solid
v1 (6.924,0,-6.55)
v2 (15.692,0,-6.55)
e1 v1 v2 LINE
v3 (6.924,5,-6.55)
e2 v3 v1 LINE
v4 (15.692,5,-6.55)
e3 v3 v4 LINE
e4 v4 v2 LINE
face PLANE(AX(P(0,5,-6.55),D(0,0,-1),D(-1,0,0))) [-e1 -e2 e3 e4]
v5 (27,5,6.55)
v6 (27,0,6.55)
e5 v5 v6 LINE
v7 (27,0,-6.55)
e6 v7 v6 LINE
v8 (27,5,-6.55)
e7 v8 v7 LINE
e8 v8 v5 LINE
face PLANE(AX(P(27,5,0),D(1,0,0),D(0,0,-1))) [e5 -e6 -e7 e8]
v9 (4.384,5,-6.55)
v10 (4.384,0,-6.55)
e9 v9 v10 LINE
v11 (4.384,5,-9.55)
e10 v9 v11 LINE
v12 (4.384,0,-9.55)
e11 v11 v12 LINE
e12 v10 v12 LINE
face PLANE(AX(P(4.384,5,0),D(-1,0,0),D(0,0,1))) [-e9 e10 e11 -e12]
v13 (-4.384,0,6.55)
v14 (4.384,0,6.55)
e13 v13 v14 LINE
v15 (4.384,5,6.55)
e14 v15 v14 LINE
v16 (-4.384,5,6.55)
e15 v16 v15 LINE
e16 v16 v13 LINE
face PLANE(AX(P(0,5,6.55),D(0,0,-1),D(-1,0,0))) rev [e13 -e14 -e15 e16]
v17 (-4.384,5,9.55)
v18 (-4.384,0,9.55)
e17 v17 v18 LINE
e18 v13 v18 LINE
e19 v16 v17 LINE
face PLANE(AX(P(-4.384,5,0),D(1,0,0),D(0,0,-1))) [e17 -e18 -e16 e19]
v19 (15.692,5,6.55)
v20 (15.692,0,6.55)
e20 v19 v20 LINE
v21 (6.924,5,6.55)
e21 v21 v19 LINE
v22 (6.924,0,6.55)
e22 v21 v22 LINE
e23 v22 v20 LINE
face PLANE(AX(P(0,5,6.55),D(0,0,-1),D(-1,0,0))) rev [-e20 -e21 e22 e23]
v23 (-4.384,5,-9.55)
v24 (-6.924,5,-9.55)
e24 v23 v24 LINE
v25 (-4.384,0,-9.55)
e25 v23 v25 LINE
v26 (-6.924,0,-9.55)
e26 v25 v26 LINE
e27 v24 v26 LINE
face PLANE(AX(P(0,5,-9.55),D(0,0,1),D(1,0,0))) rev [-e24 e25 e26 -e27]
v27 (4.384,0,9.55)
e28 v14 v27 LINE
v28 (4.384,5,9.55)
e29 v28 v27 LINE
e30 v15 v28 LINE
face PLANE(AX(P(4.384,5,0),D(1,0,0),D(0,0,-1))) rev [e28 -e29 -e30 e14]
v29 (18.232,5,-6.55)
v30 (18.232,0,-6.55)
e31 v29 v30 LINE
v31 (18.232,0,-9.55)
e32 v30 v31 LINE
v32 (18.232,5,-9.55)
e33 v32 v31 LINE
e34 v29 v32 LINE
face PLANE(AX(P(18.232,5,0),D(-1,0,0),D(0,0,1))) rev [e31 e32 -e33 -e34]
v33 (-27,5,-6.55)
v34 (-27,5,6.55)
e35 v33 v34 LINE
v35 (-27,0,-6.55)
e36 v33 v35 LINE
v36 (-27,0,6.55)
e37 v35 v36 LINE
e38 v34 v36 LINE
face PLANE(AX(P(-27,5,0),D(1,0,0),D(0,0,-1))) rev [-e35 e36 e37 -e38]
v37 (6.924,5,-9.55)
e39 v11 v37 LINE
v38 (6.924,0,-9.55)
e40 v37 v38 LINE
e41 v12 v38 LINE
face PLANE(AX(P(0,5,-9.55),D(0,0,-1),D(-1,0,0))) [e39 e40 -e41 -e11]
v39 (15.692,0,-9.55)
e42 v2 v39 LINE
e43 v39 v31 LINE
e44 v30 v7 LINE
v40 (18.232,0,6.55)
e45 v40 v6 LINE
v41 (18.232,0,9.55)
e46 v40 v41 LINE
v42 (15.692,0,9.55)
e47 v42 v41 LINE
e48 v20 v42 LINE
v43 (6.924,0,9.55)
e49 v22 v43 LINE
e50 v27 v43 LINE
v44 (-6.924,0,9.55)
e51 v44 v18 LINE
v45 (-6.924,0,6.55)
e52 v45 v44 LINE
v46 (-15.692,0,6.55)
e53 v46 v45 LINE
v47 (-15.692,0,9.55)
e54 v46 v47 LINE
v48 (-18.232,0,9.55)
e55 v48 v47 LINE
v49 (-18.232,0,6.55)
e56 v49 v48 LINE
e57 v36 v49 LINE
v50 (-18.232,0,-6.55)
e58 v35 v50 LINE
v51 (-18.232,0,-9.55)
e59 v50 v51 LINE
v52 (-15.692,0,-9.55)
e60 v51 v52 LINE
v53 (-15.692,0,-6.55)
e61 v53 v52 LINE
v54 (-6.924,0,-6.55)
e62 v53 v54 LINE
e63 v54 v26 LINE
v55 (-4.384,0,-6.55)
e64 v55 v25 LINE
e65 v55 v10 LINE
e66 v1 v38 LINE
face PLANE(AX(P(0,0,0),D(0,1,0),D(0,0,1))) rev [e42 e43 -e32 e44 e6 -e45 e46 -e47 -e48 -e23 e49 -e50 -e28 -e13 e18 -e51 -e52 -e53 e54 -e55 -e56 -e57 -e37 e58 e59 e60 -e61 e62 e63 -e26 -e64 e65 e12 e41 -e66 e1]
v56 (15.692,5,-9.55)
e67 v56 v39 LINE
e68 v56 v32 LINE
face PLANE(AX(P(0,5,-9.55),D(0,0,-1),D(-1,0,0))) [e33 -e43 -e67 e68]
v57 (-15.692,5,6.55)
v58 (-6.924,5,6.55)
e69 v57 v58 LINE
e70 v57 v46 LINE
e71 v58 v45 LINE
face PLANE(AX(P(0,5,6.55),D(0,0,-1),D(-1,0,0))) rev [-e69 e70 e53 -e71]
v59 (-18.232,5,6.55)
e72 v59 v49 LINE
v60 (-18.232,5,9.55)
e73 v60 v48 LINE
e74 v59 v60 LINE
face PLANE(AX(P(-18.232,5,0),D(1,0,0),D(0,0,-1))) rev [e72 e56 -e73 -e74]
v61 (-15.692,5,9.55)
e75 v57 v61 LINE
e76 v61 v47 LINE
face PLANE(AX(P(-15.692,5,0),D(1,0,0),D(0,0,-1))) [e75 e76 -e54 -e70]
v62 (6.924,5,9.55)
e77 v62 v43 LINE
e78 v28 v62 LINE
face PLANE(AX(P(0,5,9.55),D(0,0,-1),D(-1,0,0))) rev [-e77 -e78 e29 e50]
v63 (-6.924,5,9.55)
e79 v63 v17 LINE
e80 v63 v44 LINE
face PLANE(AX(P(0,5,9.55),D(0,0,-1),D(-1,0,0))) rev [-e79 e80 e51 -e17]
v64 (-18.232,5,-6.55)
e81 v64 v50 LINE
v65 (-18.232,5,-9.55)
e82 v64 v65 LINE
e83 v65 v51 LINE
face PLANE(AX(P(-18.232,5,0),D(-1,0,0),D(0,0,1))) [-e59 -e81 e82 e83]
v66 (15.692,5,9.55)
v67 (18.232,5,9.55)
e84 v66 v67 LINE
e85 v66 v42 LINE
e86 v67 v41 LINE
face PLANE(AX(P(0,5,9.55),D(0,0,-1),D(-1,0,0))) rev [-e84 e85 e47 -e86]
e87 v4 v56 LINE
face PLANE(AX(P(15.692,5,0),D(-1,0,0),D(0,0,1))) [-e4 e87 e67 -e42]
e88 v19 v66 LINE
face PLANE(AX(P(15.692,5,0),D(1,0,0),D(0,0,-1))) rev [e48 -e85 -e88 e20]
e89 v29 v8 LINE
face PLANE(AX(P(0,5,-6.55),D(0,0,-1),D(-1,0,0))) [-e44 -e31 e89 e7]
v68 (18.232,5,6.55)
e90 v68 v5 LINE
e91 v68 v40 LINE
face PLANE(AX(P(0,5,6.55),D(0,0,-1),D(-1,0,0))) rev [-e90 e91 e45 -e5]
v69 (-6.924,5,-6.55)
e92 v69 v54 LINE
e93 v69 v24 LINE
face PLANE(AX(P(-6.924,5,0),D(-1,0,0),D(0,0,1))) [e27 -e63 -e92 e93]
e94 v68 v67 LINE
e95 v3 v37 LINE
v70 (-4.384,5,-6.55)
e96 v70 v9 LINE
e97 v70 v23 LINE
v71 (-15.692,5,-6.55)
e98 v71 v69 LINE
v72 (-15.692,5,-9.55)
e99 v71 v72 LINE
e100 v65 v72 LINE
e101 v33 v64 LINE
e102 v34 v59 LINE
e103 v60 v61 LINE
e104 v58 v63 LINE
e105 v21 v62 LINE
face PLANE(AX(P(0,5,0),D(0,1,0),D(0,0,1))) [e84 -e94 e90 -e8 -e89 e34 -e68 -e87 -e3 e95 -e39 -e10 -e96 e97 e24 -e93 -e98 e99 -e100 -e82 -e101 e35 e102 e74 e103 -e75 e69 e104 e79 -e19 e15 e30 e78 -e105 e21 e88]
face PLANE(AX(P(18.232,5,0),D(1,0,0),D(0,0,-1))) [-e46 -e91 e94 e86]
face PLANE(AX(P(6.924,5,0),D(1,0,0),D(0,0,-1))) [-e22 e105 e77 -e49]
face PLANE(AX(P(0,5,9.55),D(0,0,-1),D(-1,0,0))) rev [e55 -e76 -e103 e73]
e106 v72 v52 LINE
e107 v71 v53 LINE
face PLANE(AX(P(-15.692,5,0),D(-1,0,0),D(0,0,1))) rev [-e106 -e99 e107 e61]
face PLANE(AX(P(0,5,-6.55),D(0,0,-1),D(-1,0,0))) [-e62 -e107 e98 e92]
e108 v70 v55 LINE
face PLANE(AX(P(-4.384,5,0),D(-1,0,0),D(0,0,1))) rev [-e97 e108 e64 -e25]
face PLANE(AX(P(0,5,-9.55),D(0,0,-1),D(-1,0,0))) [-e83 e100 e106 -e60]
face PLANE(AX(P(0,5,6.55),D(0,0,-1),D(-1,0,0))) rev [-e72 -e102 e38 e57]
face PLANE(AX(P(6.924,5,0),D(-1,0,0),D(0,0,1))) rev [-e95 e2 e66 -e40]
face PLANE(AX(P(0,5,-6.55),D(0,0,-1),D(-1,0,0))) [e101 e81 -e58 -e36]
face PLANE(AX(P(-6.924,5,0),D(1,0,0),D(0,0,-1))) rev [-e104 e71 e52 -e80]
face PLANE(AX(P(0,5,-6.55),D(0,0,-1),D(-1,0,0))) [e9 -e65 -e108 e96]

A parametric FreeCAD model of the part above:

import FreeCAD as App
import Part
import Sketcher
Q = App.Units.Quantity


def add_polygon(sketch, points):
    """Adds a closed chain of lines whose ends are joined by coincident constraints."""
    first, n = sketch.GeometryCount, len(points)
    for a, b in zip(points, points[1:] + points[:1]):
        sketch.addGeometry(Part.LineSegment(App.Vector(*a, 0), App.Vector(*b, 0)), False)
    for i in range(n):
        sketch.addConstraint(Sketcher.Constraint("Coincident", first + i, 2, first + (i + 1) % n, 1))

doc = App.newDocument("Part")
body = doc.addObject("PartDesign::Body", "Body")

sketch1 = body.newObject("Sketcher::SketchObject", "Sketch")
sketch1.AttachmentSupport = (doc.getObject("XZ_Plane"), [""])
sketch1.MapMode = "FlatFace"
add_polygon(sketch1, [(-27, -6.55), (-27, 6.55), (-18.232, 6.55), (-18.232, 9.55), (-15.692, 9.55), (-15.692, 6.55), (-6.924, 6.55), (-6.924, 9.55), (-4.384, 9.55), (-4.384, 6.55), (4.384, 6.55), (4.384, 9.55), (6.924, 9.55), (6.924, 6.55), (15.692, 6.55), (15.692, 9.55), (18.232, 9.55), (18.232, 6.55), (27, 6.55), (27, -6.55), (18.232, -6.55), (18.232, -9.55), (15.692, -9.55), (15.692, -6.55), (6.924, -6.55), (6.924, -9.55), (4.384, -9.55), (4.384, -6.55), (-4.384, -6.55), (-4.384, -9.55), (-6.924, -9.55), (-6.924, -6.55), (-15.692, -6.55), (-15.692, -9.55), (-18.232, -9.55), (-18.232, -6.55)])
sketch1.addConstraint(Sketcher.Constraint("Vertical", 0))
sketch1.addConstraint(Sketcher.Constraint("Horizontal", 1))
sketch1.addConstraint(Sketcher.Constraint("Vertical", 2))
sketch1.addConstraint(Sketcher.Constraint("Horizontal", 3))
sketch1.addConstraint(Sketcher.Constraint("Vertical", 4))
sketch1.addConstraint(Sketcher.Constraint("Horizontal", 5))
sketch1.addConstraint(Sketcher.Constraint("Vertical", 6))
sketch1.addConstraint(Sketcher.Constraint("Horizontal", 7))
sketch1.addConstraint(Sketcher.Constraint("Vertical", 8))
sketch1.addConstraint(Sketcher.Constraint("Horizontal", 9))
sketch1.addConstraint(Sketcher.Constraint("Vertical", 10))
sketch1.addConstraint(Sketcher.Constraint("Horizontal", 11))
sketch1.addConstraint(Sketcher.Constraint("Vertical", 12))
sketch1.addConstraint(Sketcher.Constraint("Horizontal", 13))
sketch1.addConstraint(Sketcher.Constraint("Vertical", 14))
sketch1.addConstraint(Sketcher.Constraint("Horizontal", 15))
sketch1.addConstraint(Sketcher.Constraint("Vertical", 16))
sketch1.addConstraint(Sketcher.Constraint("Horizontal", 17))
sketch1.addConstraint(Sketcher.Constraint("Vertical", 18))
sketch1.addConstraint(Sketcher.Constraint("Horizontal", 19))
sketch1.addConstraint(Sketcher.Constraint("Vertical", 20))
sketch1.addConstraint(Sketcher.Constraint("Horizontal", 21))
sketch1.addConstraint(Sketcher.Constraint("Vertical", 22))
sketch1.addConstraint(Sketcher.Constraint("Horizontal", 23))
sketch1.addConstraint(Sketcher.Constraint("Vertical", 24))
sketch1.addConstraint(Sketcher.Constraint("Horizontal", 25))
sketch1.addConstraint(Sketcher.Constraint("Vertical", 26))
sketch1.addConstraint(Sketcher.Constraint("Horizontal", 27))
sketch1.addConstraint(Sketcher.Constraint("Vertical", 28))
sketch1.addConstraint(Sketcher.Constraint("Horizontal", 29))
sketch1.addConstraint(Sketcher.Constraint("Vertical", 30))
sketch1.addConstraint(Sketcher.Constraint("Horizontal", 31))
sketch1.addConstraint(Sketcher.Constraint("Vertical", 32))
sketch1.addConstraint(Sketcher.Constraint("Horizontal", 33))
sketch1.addConstraint(Sketcher.Constraint("Vertical", 34))
sketch1.addConstraint(Sketcher.Constraint("Horizontal", 35))
sketch1.addConstraint(Sketcher.Constraint("Symmetric", 0, 2, 18, 2, -1, 1))
sketch1.addConstraint(Sketcher.Constraint("Symmetric", 2, 2, 20, 2, -1, 1))
sketch1.addConstraint(Sketcher.Constraint("Symmetric", 4, 2, 22, 2, -1, 1))
sketch1.addConstraint(Sketcher.Constraint("Symmetric", 6, 2, 24, 2, -1, 1))
sketch1.addConstraint(Sketcher.Constraint("Symmetric", 8, 2, 26, 2, -1, 1))
sketch1.addConstraint(Sketcher.Constraint("Symmetric", 10, 2, 28, 2, -1, 1))
sketch1.addConstraint(Sketcher.Constraint("Symmetric", 12, 2, 30, 2, -1, 1))
sketch1.addConstraint(Sketcher.Constraint("Symmetric", 14, 2, 32, 2, -1, 1))
sketch1.addConstraint(Sketcher.Constraint("Symmetric", 16, 2, 34, 2, -1, 1))
sketch1.addConstraint(Sketcher.Constraint("Symmetric", 7, 2, 10, 2, -2))
sketch1.addConstraint(Sketcher.Constraint("Symmetric", 5, 2, 12, 2, -2))
sketch1.addConstraint(Sketcher.Constraint("Symmetric", 3, 2, 14, 2, -2))
sketch1.addConstraint(Sketcher.Constraint("Symmetric", 1, 2, 16, 2, -2))
sketch1.addConstraint(Sketcher.Constraint("Horizontal", 1, 2, 4, 2))
sketch1.addConstraint(Sketcher.Constraint("Horizontal", 3, 2, 6, 2))
sketch1.addConstraint(Sketcher.Constraint("Horizontal", 5, 2, 8, 2))
sketch1.addConstraint(Sketcher.Constraint("Equal", 1, 5))
sketch1.addConstraint(Sketcher.Constraint("Equal", 3, 7))
sketch1.addConstraint(Sketcher.Constraint("Equal", 5, 9))
sketch1.addConstraint(Sketcher.Constraint("DistanceY", 2, 1, 2, 2, Q("3 mm")))
sketch1.addConstraint(Sketcher.Constraint("DistanceY", 0, 1, 0, 2, Q("13.1 mm")))
sketch1.addConstraint(Sketcher.Constraint("DistanceX", 0, 2, -1, 1, Q("27 mm")))
sketch1.addConstraint(Sketcher.Constraint("DistanceX", 3, 1, 3, 2, Q("2.54 mm")))
pad1 = body.newObject("PartDesign::Pad", "Pad")
pad1.Profile = sketch1
pad1.Length = 5
pad1.Reversed = True

doc.recompute()
